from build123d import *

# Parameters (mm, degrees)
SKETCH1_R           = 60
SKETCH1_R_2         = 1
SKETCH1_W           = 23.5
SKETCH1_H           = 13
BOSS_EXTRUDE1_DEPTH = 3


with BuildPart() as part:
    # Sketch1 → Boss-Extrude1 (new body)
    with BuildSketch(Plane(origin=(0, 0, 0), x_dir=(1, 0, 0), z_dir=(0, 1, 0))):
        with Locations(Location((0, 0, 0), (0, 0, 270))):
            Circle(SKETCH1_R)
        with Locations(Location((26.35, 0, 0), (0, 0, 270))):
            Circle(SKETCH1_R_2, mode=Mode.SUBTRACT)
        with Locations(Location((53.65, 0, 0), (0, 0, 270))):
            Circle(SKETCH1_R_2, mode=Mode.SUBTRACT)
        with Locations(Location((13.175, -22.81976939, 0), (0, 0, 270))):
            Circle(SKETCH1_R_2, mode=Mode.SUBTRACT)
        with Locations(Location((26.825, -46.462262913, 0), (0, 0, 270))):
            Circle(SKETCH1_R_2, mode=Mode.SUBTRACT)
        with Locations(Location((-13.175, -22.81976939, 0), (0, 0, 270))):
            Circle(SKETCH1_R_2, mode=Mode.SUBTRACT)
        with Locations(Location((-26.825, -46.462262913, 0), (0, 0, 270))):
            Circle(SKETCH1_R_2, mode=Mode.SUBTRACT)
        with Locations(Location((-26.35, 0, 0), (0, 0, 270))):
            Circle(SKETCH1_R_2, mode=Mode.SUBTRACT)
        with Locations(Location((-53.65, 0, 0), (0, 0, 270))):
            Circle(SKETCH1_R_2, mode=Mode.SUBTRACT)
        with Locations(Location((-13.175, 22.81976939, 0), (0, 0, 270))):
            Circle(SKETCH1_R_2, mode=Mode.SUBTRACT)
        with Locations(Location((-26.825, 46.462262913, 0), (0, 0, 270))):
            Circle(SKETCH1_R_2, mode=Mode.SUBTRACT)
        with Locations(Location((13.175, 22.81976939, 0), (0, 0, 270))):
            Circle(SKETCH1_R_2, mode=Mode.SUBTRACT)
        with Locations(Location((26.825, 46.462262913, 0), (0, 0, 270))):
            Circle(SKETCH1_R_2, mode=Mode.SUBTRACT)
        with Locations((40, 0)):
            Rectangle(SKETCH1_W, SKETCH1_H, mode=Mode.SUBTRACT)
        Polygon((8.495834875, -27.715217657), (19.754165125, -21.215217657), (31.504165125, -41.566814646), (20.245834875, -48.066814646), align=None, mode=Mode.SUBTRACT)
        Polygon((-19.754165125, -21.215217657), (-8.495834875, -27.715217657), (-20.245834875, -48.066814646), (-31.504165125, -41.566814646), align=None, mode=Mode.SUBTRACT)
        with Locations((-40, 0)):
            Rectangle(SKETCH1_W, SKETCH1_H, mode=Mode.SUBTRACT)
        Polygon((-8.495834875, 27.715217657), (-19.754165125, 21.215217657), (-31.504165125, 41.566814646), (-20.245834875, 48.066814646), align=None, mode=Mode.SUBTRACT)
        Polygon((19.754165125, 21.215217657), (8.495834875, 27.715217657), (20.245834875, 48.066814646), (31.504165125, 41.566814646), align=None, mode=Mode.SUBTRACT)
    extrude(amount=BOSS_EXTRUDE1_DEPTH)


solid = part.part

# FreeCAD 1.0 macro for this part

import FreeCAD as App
import Part
import Sketcher
Q = App.Units.Quantity


def add_polygon(sketch, points):
    """Adds a closed chain of lines whose ends are joined by coincident constraints."""
    first, n = sketch.GeometryCount, len(points)
    for a, b in zip(points, points[1:] + points[:1]):
        sketch.addGeometry(Part.LineSegment(App.Vector(*a, 0), App.Vector(*b, 0)), False)
    for i in range(n):
        sketch.addConstraint(Sketcher.Constraint("Coincident", first + i, 2, first + (i + 1) % n, 1))

doc = App.newDocument("Part")
body = doc.addObject("PartDesign::Body", "Body")

# Sketch on XZ plane
sketch1 = doc.addObject("Sketcher::SketchObject", "Sketch")
body.addObject(sketch1)
sketch1.AttachmentSupport = (doc.XZ_Plane, [""])
sketch1.MapMode = "FlatFace"
sketch1.addGeometry(Part.Circle(App.Vector(0, 0, 0), App.Vector(0, 0, 1), 60), False)  # 0
sketch1.addGeometry(Part.Circle(App.Vector(-26.8, -46.5, 0), App.Vector(0, 0, 1), 1), False)  # 1
add_polygon(sketch1, [(-20.2, -48.1), (-8.5, -27.7), (-19.8, -21.2), (-31.5, -41.6)])  # lines 2-5
sketch1.addGeometry(Part.Circle(App.Vector(-13.2, -22.8, 0), App.Vector(0, 0, 1), 1), False)  # 6
sketch1.addGeometry(Part.Circle(App.Vector(-53.6, 0, 0), App.Vector(0, 0, 1), 1), False)  # 7
add_polygon(sketch1, [(-28.2, 6.5), (-51.8, 6.5), (-51.8, -6.5), (-28.2, -6.5)])  # lines 8-11
sketch1.addGeometry(Part.Circle(App.Vector(-26.4, 0, 0), App.Vector(0, 0, 1), 1), False)  # 12
sketch1.addGeometry(Part.Circle(App.Vector(-13.2, 22.8, 0), App.Vector(0, 0, 1), 1), False)  # 13
add_polygon(sketch1, [(-31.5, 41.6), (-19.8, 21.2), (-8.5, 27.7), (-20.2, 48.1)])  # lines 14-17
sketch1.addGeometry(Part.Circle(App.Vector(-26.8, 46.5, 0), App.Vector(0, 0, 1), 1), False)  # 18
sketch1.addGeometry(Part.Circle(App.Vector(26.8, -46.5, 0), App.Vector(0, 0, 1), 1), False)  # 19
add_polygon(sketch1, [(31.5, -41.6), (19.8, -21.2), (8.5, -27.7), (20.2, -48.1)])  # lines 20-23
sketch1.addGeometry(Part.Circle(App.Vector(13.2, -22.8, 0), App.Vector(0, 0, 1), 1), False)  # 24
sketch1.addGeometry(Part.Circle(App.Vector(26.4, 0, 0), App.Vector(0, 0, 1), 1), False)  # 25
add_polygon(sketch1, [(51.8, 6.5), (28.2, 6.5), (28.2, -6.5), (51.8, -6.5)])  # lines 26-29
sketch1.addGeometry(Part.Circle(App.Vector(53.6, 0, 0), App.Vector(0, 0, 1), 1), False)  # 30
sketch1.addGeometry(Part.Circle(App.Vector(13.2, 22.8, 0), App.Vector(0, 0, 1), 1), False)  # 31
add_polygon(sketch1, [(20.2, 48.1), (8.5, 27.7), (19.8, 21.2), (31.5, 41.6)])  # lines 32-35
sketch1.addGeometry(Part.Circle(App.Vector(26.8, 46.5, 0), App.Vector(0, 0, 1), 1), False)  # 36
sketch1.addConstraint([
    Sketcher.Constraint("Horizontal", 8),
    Sketcher.Constraint("Vertical", 9),
    Sketcher.Constraint("Horizontal", 10),
    Sketcher.Constraint("Vertical", 11),
    Sketcher.Constraint("Horizontal", 26),
    Sketcher.Constraint("Vertical", 27),
    Sketcher.Constraint("Horizontal", 28),
    Sketcher.Constraint("Vertical", 29),
    Sketcher.Constraint("Coincident", 0, 3, -1, 1),
    Sketcher.Constraint("Equal", 1, 6),
    Sketcher.Constraint("Equal", 6, 7),
    Sketcher.Constraint("Equal", 7, 12),
    Sketcher.Constraint("Equal", 12, 13),
    Sketcher.Constraint("Equal", 13, 18),
    Sketcher.Constraint("Equal", 18, 19),
    Sketcher.Constraint("Equal", 19, 24),
    Sketcher.Constraint("Equal", 24, 25),
    Sketcher.Constraint("Equal", 25, 30),
    Sketcher.Constraint("Equal", 30, 31),
    Sketcher.Constraint("Equal", 31, 36),
    Sketcher.Constraint("Symmetric", 18, 3, 19, 3, -1, 1),
    Sketcher.Constraint("Symmetric", 13, 3, 24, 3, -1, 1),
    Sketcher.Constraint("Symmetric", 12, 3, 25, 3, -1, 1),
    Sketcher.Constraint("Symmetric", 7, 3, 30, 3, -1, 1),
    Sketcher.Constraint("Symmetric", 6, 3, 31, 3, -1, 1),
    Sketcher.Constraint("Symmetric", 1, 3, 36, 3, -1, 1),
    Sketcher.Constraint("Symmetric", 14, 2, 20, 2, -1, 1),
    Sketcher.Constraint("Symmetric", 15, 2, 21, 2, -1, 1),
    Sketcher.Constraint("Symmetric", 16, 2, 22, 2, -1, 1),
    Sketcher.Constraint("Symmetric", 17, 2, 23, 2, -1, 1),
    Sketcher.Constraint("Symmetric", 10, 2, 26, 2, -1, 1),
    Sketcher.Constraint("Symmetric", 8, 2, 28, 2, -1, 1),
    Sketcher.Constraint("Symmetric", 2, 2, 32, 2, -1, 1),
    Sketcher.Constraint("Symmetric", 3, 2, 33, 2, -1, 1),
    Sketcher.Constraint("Symmetric", 4, 2, 34, 2, -1, 1),
    Sketcher.Constraint("Symmetric", 5, 2, 35, 2, -1, 1),
    Sketcher.Constraint("Symmetric", 1, 3, 19, 3, -2),
    Sketcher.Constraint("Symmetric", 6, 3, 24, 3, -2),
    Sketcher.Constraint("Symmetric", 3, 2, 20, 2, -2),
    Sketcher.Constraint("Symmetric", 2, 2, 21, 2, -2),
    Sketcher.Constraint("Symmetric", 5, 2, 22, 2, -2),
    Sketcher.Constraint("Symmetric", 4, 2, 23, 2, -2),
    Sketcher.Constraint("PointOnObject", 7, 3, -1),
    Sketcher.Constraint("PointOnObject", 12, 3, -1),
    Sketcher.Constraint("Perpendicular", 2, 3),
    Sketcher.Constraint("Perpendicular", 3, 4),
    Sketcher.Constraint("Perpendicular", 4, 5),
    Sketcher.Constraint("Horizontal", 11, 2, 26, 2),
    Sketcher.Constraint("Diameter", 0, Q("120 mm")),
    Sketcher.Constraint("Diameter", 1, Q("2 mm")),
    Sketcher.Constraint("DistanceY", 9, 2, 9, 1, Q("13 mm")),
    Sketcher.Constraint("Angle", 2, Q("60 deg")),
    Sketcher.Constraint("Distance", 3, Q("13 mm")),
    Sketcher.Constraint("DistanceX", 8, 2, 8, 1, Q("23.5 mm")),
    Sketcher.Constraint("DistanceX", 6, 3, 19, 3, Q("40 mm")),
    Sketcher.Constraint("Distance", 2, Q("23.5 mm")),
    Sketcher.Constraint("DistanceX", 7, 3, 12, 3, Q("27.3 mm")),
    Sketcher.Constraint("DistanceX", 7, 3, 8, 2, Q("1.9 mm")),
    Sketcher.Constraint("DistanceX", 7, 3, -1, 1, Q("53.65 mm")),
    Sketcher.Constraint("DistanceX", 1, 3, 6, 3, Q("13.65 mm")),
    Sketcher.Constraint("DistanceX", 2, 2, 20, 2, Q("28.25 mm")),
    Sketcher.Constraint("DistanceY", 6, 3, -1, 1, Q("22.819769 mm")),
    Sketcher.Constraint("DistanceY", 2, 2, 6, 3, Q("4.895448 mm")),
    Sketcher.Constraint("DistanceY", 1, 3, 4, 2, Q("4.895448 mm")),
])
pad1 = doc.addObject("PartDesign::Pad", "Pad")
body.addObject(pad1)
pad1.Profile = sketch1
pad1.Length = 3
pad1.Reversed = True

doc.recompute()
